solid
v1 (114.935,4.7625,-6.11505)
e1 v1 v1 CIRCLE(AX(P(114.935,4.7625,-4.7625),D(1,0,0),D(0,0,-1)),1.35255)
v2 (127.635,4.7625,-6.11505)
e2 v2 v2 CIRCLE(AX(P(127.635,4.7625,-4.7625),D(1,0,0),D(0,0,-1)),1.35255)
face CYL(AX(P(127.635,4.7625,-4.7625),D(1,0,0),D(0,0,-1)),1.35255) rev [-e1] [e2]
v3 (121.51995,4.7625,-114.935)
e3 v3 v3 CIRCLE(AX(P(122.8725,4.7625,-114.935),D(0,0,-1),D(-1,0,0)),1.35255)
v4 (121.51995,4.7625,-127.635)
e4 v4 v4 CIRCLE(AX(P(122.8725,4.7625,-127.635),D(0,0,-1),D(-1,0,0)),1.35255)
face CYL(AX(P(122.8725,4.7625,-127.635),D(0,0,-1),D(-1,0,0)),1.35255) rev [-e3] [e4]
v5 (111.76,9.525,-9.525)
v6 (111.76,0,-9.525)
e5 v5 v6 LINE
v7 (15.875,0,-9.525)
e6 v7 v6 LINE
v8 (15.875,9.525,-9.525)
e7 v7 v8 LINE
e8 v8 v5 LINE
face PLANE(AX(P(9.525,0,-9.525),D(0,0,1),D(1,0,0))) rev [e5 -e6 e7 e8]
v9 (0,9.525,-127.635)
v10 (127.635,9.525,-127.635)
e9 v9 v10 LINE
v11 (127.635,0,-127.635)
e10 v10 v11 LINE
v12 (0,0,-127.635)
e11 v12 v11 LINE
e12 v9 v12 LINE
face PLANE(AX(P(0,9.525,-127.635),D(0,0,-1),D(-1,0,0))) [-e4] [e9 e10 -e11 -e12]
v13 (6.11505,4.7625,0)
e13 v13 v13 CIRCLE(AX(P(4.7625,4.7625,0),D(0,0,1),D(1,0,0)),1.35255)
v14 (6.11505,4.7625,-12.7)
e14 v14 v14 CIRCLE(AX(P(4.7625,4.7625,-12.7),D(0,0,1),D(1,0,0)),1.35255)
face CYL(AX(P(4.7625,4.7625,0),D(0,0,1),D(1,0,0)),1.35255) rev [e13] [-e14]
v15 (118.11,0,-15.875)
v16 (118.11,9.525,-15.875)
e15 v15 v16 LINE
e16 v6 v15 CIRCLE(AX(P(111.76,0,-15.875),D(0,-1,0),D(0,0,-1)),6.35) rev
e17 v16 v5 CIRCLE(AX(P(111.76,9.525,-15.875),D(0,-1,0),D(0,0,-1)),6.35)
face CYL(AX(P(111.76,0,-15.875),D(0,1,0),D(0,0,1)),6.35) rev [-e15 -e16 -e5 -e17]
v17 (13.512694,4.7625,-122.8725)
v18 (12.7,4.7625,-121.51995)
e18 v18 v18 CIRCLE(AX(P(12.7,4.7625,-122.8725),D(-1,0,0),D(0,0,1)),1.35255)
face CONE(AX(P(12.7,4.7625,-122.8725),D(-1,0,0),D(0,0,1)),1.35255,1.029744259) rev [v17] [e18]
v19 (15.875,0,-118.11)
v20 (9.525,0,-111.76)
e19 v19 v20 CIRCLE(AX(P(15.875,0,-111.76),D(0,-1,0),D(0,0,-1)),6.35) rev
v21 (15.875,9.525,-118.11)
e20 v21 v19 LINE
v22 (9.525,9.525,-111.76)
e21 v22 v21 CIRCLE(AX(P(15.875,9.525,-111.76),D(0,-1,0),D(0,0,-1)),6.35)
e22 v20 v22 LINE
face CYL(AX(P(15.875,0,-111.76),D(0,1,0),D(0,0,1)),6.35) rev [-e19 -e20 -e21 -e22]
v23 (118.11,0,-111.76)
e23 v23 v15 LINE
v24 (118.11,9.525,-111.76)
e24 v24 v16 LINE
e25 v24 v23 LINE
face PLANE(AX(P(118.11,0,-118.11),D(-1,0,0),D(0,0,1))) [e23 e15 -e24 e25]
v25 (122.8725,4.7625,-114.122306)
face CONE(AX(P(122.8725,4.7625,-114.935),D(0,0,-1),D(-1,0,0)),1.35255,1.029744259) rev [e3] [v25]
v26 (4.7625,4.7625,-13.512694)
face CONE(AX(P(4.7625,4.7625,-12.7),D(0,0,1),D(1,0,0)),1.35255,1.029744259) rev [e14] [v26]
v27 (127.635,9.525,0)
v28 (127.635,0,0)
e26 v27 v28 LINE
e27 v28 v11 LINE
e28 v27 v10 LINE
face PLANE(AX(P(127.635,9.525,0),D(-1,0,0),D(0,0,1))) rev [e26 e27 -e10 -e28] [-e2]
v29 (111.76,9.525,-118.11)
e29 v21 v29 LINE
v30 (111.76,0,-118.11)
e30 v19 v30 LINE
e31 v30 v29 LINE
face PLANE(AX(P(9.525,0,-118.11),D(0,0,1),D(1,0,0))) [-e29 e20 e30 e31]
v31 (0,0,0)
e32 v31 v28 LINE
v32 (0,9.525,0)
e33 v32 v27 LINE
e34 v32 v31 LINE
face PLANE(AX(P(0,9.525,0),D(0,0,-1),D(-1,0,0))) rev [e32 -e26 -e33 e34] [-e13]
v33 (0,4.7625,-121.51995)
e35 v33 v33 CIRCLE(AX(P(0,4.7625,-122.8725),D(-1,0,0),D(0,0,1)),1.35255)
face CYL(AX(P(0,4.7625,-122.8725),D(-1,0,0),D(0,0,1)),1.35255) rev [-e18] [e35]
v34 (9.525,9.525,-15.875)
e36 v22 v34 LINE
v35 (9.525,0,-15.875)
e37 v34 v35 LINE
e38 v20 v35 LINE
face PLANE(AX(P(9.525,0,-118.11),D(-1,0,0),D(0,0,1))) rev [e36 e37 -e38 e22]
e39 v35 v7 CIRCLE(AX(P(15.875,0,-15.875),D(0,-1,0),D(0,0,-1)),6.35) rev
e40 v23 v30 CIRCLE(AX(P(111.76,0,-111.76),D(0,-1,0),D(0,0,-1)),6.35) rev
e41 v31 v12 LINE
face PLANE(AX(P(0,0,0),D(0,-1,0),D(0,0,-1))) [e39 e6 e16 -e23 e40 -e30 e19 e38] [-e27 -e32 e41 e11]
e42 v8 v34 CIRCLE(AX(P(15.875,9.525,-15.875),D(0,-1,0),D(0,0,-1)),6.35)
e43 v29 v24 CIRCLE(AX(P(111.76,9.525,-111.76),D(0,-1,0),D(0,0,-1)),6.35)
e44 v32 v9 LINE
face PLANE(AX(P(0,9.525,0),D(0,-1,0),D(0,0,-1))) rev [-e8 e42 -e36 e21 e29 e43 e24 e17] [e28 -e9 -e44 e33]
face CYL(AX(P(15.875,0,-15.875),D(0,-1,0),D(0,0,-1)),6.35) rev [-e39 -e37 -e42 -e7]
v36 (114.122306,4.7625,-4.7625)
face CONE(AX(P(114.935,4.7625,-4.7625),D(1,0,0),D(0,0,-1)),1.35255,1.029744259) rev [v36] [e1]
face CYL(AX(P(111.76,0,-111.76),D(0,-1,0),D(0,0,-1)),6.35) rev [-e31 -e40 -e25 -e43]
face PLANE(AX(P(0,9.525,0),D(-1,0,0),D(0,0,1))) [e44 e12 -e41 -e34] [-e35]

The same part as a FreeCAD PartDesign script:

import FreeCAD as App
import Part
import Sketcher
from FreeCAD import Vector
Q = App.Units.Quantity


def edges_at(feature, points):
    """Names of the edges that pass closest to the given points."""
    edges = feature.Shape.Edges
    near = lambda p: min(range(len(edges)), key=lambda i: edges[i].distToShape(Part.Vertex(*p))[0])
    return sorted({f"Edge{near(p) + 1}" for p in points})

doc = App.newDocument("Part")
body = doc.addObject("PartDesign::Body", "Body")

sketch1 = body.newObject("Sketcher::SketchObject", "Sketch")
sketch1.AttachmentSupport = (doc.getObject("XZ_Plane"), [""])
sketch1.MapMode = "FlatFace"
sketch1.addGeometry(Part.LineSegment(Vector(0, -128, 0), Vector(0, 0, 0)), False)
sketch1.addGeometry(Part.LineSegment(Vector(0, 0, 0), Vector(128, 0, 0)), False)
sketch1.addGeometry(Part.LineSegment(Vector(128, 0, 0), Vector(128, -128, 0)), False)
sketch1.addGeometry(Part.LineSegment(Vector(128, -128, 0), Vector(0, -128, 0)), False)
sketch1.addConstraint(Sketcher.Constraint("Coincident", 0, 2, 1, 1))
sketch1.addConstraint(Sketcher.Constraint("Coincident", 1, 2, 2, 1))
sketch1.addConstraint(Sketcher.Constraint("Coincident", 2, 2, 3, 1))
sketch1.addConstraint(Sketcher.Constraint("Coincident", 3, 2, 0, 1))
sketch1.addConstraint(Sketcher.Constraint("Vertical", 0))
sketch1.addConstraint(Sketcher.Constraint("Horizontal", 1))
sketch1.addConstraint(Sketcher.Constraint("Vertical", 2))
sketch1.addConstraint(Sketcher.Constraint("Horizontal", 3))
sketch1.addConstraint(Sketcher.Constraint("Coincident", 0, 2, -1, 1))
sketch1.addConstraint(Sketcher.Constraint("Equal", 3, 0))
sketch1.addConstraint(Sketcher.Constraint("DistanceX", 1, 1, 1, 2, Q("5.025 in")))
pad1 = body.newObject("PartDesign::Pad", "Pad")
pad1.Profile = sketch1
pad1.Length = Q("0.375 in")
pad1.Reversed = True

sketch2 = body.newObject("Sketcher::SketchObject", "Sketch001")
sketch2.AttachmentSupport = (doc.getObject("XZ_Plane"), [""])
sketch2.MapMode = "FlatFace"
sketch2.AttachmentOffset = App.Placement(Vector(0, 0, -0.375 * 25.4), App.Rotation())
sketch2.addGeometry(Part.LineSegment(Vector(10, -118, 0), Vector(10, -10, 0)), False)
sketch2.addGeometry(Part.LineSegment(Vector(10, -10, 0), Vector(118, -10, 0)), False)
sketch2.addGeometry(Part.LineSegment(Vector(118, -10, 0), Vector(118, -118, 0)), False)
sketch2.addGeometry(Part.LineSegment(Vector(118, -118, 0), Vector(10, -118, 0)), False)
sketch2.addConstraint(Sketcher.Constraint("Coincident", 0, 2, 1, 1))
sketch2.addConstraint(Sketcher.Constraint("Coincident", 1, 2, 2, 1))
sketch2.addConstraint(Sketcher.Constraint("Coincident", 2, 2, 3, 1))
sketch2.addConstraint(Sketcher.Constraint("Coincident", 3, 2, 0, 1))
sketch2.addConstraint(Sketcher.Constraint("Vertical", 0))
sketch2.addConstraint(Sketcher.Constraint("Horizontal", 1))
sketch2.addConstraint(Sketcher.Constraint("Vertical", 2))
sketch2.addConstraint(Sketcher.Constraint("Horizontal", 3))
sketch2.addConstraint(Sketcher.Constraint("Equal", 3, 0))
sketch2.addConstraint(Sketcher.Constraint("DistanceX", 1, 1, 1, 2, Q("4.275 in")))
sketch2.addConstraint(Sketcher.Constraint("DistanceX", -1, 1, 1, 2, Q("4.65 in")))
sketch2.addConstraint(Sketcher.Constraint("DistanceY", 2, 2, -1, 1, Q("4.65 in")))
pocket1 = body.newObject("PartDesign::Pocket", "Pocket")
pocket1.Profile = sketch2
pocket1.Length = Q("0.375 in")
pocket1.Reversed = True
doc.recompute()

fillet = body.newObject("PartDesign::Fillet", "Fillet")
fillet.Base = (pocket1, edges_at(pocket1, [
    (118.11, 4.763, -9.525),
    (9.525, 4.763, -9.525),
    (9.525, 4.763, -118.11),
    (118.11, 4.763, -118.11),
]))
fillet.Radius = Q("0.25 in")

sketch3 = body.newObject("Sketcher::SketchObject", "Sketch002")
sketch3.AttachmentSupport = (doc.getObject("YZ_Plane"), [""])
sketch3.MapMode = "FlatFace"
sketch3.AttachmentOffset = App.Placement(Vector(0, 0, 5.025 * 25.4), App.Rotation())
sketch3.addGeometry(Part.Circle(Vector(4.8, -4.8, 0), Vector(0, 0, 1), 1.4), False)
sketch3.addConstraint(Sketcher.Constraint("Diameter", 0, Q("0.1065 in")))
sketch3.addConstraint(Sketcher.Constraint("DistanceX", -1, 1, 0, 3, Q("0.1875 in")))
sketch3.addConstraint(Sketcher.Constraint("DistanceY", 0, 3, -1, 1, Q("0.1875 in")))
doc.recompute()
hole = body.newObject("PartDesign::Hole", "Hole")
hole.Profile = sketch3
hole.ThreadType = "None"
hole.Diameter = Q("0.1065 in")
hole.DepthType = "Dimension"
hole.Depth = Q("0.5 in")
hole.DrillPoint = "Angled"
hole.DrillPointAngle = 118

sketch4 = body.newObject("Sketcher::SketchObject", "Sketch003")
sketch4.AttachmentSupport = (doc.getObject("XY_Plane"), [""])
sketch4.MapMode = "FlatFace"
sketch4.addGeometry(Part.Circle(Vector(4.8, 4.8, 0), Vector(0, 0, 1), 1.4), False)
sketch4.addConstraint(Sketcher.Constraint("Diameter", 0, Q("0.1065 in")))
sketch4.addConstraint(Sketcher.Constraint("DistanceX", -1, 1, 0, 3, Q("0.1875 in")))
sketch4.addConstraint(Sketcher.Constraint("DistanceY", -1, 1, 0, 3, Q("0.1875 in")))
doc.recompute()
hole2 = body.newObject("PartDesign::Hole", "Hole001")
hole2.Profile = sketch4
hole2.ThreadType = "None"
hole2.Diameter = Q("0.1065 in")
hole2.DepthType = "Dimension"
hole2.Depth = Q("0.5 in")
hole2.DrillPoint = "Angled"
hole2.DrillPointAngle = 118

sketch5 = body.newObject("Sketcher::SketchObject", "Sketch004")
sketch5.AttachmentSupport = (doc.getObject("YZ_Plane"), [""])
sketch5.MapMode = "FlatFace"
sketch5.addGeometry(Part.Circle(Vector(4.8, -122.9, 0), Vector(0, 0, 1), 1.4), False)
sketch5.addConstraint(Sketcher.Constraint("Diameter", 0, Q("0.1065 in")))
sketch5.addConstraint(Sketcher.Constraint("DistanceX", -1, 1, 0, 3, Q("0.1875 in")))
sketch5.addConstraint(Sketcher.Constraint("DistanceY", 0, 3, -1, 1, Q("4.8375 in")))
doc.recompute()
hole3 = body.newObject("PartDesign::Hole", "Hole002")
hole3.Profile = sketch5
hole3.ThreadType = "None"
hole3.Diameter = Q("0.1065 in")
hole3.DepthType = "Dimension"
hole3.Depth = Q("0.5 in")
hole3.DrillPoint = "Angled"
hole3.DrillPointAngle = 118
hole3.Reversed = True

sketch6 = body.newObject("Sketcher::SketchObject", "Sketch005")
sketch6.AttachmentSupport = (doc.getObject("XY_Plane"), [""])
sketch6.MapMode = "FlatFace"
sketch6.AttachmentOffset = App.Placement(Vector(0, 0, -5.025 * 25.4), App.Rotation())
sketch6.addGeometry(Part.Circle(Vector(122.9, 4.8, 0), Vector(0, 0, 1), 1.4), False)
sketch6.addConstraint(Sketcher.Constraint("Diameter", 0, Q("0.1065 in")))
sketch6.addConstraint(Sketcher.Constraint("DistanceY", -1, 1, 0, 3, Q("0.1875 in")))
sketch6.addConstraint(Sketcher.Constraint("DistanceX", -1, 1, 0, 3, Q("4.8375 in")))
doc.recompute()
hole4 = body.newObject("PartDesign::Hole", "Hole003")
hole4.Profile = sketch6
hole4.ThreadType = "None"
hole4.Diameter = Q("0.1065 in")
hole4.DepthType = "Dimension"
hole4.Depth = Q("0.5 in")
hole4.DrillPoint = "Angled"
hole4.DrillPointAngle = 118
hole4.Reversed = True

doc.recompute()
